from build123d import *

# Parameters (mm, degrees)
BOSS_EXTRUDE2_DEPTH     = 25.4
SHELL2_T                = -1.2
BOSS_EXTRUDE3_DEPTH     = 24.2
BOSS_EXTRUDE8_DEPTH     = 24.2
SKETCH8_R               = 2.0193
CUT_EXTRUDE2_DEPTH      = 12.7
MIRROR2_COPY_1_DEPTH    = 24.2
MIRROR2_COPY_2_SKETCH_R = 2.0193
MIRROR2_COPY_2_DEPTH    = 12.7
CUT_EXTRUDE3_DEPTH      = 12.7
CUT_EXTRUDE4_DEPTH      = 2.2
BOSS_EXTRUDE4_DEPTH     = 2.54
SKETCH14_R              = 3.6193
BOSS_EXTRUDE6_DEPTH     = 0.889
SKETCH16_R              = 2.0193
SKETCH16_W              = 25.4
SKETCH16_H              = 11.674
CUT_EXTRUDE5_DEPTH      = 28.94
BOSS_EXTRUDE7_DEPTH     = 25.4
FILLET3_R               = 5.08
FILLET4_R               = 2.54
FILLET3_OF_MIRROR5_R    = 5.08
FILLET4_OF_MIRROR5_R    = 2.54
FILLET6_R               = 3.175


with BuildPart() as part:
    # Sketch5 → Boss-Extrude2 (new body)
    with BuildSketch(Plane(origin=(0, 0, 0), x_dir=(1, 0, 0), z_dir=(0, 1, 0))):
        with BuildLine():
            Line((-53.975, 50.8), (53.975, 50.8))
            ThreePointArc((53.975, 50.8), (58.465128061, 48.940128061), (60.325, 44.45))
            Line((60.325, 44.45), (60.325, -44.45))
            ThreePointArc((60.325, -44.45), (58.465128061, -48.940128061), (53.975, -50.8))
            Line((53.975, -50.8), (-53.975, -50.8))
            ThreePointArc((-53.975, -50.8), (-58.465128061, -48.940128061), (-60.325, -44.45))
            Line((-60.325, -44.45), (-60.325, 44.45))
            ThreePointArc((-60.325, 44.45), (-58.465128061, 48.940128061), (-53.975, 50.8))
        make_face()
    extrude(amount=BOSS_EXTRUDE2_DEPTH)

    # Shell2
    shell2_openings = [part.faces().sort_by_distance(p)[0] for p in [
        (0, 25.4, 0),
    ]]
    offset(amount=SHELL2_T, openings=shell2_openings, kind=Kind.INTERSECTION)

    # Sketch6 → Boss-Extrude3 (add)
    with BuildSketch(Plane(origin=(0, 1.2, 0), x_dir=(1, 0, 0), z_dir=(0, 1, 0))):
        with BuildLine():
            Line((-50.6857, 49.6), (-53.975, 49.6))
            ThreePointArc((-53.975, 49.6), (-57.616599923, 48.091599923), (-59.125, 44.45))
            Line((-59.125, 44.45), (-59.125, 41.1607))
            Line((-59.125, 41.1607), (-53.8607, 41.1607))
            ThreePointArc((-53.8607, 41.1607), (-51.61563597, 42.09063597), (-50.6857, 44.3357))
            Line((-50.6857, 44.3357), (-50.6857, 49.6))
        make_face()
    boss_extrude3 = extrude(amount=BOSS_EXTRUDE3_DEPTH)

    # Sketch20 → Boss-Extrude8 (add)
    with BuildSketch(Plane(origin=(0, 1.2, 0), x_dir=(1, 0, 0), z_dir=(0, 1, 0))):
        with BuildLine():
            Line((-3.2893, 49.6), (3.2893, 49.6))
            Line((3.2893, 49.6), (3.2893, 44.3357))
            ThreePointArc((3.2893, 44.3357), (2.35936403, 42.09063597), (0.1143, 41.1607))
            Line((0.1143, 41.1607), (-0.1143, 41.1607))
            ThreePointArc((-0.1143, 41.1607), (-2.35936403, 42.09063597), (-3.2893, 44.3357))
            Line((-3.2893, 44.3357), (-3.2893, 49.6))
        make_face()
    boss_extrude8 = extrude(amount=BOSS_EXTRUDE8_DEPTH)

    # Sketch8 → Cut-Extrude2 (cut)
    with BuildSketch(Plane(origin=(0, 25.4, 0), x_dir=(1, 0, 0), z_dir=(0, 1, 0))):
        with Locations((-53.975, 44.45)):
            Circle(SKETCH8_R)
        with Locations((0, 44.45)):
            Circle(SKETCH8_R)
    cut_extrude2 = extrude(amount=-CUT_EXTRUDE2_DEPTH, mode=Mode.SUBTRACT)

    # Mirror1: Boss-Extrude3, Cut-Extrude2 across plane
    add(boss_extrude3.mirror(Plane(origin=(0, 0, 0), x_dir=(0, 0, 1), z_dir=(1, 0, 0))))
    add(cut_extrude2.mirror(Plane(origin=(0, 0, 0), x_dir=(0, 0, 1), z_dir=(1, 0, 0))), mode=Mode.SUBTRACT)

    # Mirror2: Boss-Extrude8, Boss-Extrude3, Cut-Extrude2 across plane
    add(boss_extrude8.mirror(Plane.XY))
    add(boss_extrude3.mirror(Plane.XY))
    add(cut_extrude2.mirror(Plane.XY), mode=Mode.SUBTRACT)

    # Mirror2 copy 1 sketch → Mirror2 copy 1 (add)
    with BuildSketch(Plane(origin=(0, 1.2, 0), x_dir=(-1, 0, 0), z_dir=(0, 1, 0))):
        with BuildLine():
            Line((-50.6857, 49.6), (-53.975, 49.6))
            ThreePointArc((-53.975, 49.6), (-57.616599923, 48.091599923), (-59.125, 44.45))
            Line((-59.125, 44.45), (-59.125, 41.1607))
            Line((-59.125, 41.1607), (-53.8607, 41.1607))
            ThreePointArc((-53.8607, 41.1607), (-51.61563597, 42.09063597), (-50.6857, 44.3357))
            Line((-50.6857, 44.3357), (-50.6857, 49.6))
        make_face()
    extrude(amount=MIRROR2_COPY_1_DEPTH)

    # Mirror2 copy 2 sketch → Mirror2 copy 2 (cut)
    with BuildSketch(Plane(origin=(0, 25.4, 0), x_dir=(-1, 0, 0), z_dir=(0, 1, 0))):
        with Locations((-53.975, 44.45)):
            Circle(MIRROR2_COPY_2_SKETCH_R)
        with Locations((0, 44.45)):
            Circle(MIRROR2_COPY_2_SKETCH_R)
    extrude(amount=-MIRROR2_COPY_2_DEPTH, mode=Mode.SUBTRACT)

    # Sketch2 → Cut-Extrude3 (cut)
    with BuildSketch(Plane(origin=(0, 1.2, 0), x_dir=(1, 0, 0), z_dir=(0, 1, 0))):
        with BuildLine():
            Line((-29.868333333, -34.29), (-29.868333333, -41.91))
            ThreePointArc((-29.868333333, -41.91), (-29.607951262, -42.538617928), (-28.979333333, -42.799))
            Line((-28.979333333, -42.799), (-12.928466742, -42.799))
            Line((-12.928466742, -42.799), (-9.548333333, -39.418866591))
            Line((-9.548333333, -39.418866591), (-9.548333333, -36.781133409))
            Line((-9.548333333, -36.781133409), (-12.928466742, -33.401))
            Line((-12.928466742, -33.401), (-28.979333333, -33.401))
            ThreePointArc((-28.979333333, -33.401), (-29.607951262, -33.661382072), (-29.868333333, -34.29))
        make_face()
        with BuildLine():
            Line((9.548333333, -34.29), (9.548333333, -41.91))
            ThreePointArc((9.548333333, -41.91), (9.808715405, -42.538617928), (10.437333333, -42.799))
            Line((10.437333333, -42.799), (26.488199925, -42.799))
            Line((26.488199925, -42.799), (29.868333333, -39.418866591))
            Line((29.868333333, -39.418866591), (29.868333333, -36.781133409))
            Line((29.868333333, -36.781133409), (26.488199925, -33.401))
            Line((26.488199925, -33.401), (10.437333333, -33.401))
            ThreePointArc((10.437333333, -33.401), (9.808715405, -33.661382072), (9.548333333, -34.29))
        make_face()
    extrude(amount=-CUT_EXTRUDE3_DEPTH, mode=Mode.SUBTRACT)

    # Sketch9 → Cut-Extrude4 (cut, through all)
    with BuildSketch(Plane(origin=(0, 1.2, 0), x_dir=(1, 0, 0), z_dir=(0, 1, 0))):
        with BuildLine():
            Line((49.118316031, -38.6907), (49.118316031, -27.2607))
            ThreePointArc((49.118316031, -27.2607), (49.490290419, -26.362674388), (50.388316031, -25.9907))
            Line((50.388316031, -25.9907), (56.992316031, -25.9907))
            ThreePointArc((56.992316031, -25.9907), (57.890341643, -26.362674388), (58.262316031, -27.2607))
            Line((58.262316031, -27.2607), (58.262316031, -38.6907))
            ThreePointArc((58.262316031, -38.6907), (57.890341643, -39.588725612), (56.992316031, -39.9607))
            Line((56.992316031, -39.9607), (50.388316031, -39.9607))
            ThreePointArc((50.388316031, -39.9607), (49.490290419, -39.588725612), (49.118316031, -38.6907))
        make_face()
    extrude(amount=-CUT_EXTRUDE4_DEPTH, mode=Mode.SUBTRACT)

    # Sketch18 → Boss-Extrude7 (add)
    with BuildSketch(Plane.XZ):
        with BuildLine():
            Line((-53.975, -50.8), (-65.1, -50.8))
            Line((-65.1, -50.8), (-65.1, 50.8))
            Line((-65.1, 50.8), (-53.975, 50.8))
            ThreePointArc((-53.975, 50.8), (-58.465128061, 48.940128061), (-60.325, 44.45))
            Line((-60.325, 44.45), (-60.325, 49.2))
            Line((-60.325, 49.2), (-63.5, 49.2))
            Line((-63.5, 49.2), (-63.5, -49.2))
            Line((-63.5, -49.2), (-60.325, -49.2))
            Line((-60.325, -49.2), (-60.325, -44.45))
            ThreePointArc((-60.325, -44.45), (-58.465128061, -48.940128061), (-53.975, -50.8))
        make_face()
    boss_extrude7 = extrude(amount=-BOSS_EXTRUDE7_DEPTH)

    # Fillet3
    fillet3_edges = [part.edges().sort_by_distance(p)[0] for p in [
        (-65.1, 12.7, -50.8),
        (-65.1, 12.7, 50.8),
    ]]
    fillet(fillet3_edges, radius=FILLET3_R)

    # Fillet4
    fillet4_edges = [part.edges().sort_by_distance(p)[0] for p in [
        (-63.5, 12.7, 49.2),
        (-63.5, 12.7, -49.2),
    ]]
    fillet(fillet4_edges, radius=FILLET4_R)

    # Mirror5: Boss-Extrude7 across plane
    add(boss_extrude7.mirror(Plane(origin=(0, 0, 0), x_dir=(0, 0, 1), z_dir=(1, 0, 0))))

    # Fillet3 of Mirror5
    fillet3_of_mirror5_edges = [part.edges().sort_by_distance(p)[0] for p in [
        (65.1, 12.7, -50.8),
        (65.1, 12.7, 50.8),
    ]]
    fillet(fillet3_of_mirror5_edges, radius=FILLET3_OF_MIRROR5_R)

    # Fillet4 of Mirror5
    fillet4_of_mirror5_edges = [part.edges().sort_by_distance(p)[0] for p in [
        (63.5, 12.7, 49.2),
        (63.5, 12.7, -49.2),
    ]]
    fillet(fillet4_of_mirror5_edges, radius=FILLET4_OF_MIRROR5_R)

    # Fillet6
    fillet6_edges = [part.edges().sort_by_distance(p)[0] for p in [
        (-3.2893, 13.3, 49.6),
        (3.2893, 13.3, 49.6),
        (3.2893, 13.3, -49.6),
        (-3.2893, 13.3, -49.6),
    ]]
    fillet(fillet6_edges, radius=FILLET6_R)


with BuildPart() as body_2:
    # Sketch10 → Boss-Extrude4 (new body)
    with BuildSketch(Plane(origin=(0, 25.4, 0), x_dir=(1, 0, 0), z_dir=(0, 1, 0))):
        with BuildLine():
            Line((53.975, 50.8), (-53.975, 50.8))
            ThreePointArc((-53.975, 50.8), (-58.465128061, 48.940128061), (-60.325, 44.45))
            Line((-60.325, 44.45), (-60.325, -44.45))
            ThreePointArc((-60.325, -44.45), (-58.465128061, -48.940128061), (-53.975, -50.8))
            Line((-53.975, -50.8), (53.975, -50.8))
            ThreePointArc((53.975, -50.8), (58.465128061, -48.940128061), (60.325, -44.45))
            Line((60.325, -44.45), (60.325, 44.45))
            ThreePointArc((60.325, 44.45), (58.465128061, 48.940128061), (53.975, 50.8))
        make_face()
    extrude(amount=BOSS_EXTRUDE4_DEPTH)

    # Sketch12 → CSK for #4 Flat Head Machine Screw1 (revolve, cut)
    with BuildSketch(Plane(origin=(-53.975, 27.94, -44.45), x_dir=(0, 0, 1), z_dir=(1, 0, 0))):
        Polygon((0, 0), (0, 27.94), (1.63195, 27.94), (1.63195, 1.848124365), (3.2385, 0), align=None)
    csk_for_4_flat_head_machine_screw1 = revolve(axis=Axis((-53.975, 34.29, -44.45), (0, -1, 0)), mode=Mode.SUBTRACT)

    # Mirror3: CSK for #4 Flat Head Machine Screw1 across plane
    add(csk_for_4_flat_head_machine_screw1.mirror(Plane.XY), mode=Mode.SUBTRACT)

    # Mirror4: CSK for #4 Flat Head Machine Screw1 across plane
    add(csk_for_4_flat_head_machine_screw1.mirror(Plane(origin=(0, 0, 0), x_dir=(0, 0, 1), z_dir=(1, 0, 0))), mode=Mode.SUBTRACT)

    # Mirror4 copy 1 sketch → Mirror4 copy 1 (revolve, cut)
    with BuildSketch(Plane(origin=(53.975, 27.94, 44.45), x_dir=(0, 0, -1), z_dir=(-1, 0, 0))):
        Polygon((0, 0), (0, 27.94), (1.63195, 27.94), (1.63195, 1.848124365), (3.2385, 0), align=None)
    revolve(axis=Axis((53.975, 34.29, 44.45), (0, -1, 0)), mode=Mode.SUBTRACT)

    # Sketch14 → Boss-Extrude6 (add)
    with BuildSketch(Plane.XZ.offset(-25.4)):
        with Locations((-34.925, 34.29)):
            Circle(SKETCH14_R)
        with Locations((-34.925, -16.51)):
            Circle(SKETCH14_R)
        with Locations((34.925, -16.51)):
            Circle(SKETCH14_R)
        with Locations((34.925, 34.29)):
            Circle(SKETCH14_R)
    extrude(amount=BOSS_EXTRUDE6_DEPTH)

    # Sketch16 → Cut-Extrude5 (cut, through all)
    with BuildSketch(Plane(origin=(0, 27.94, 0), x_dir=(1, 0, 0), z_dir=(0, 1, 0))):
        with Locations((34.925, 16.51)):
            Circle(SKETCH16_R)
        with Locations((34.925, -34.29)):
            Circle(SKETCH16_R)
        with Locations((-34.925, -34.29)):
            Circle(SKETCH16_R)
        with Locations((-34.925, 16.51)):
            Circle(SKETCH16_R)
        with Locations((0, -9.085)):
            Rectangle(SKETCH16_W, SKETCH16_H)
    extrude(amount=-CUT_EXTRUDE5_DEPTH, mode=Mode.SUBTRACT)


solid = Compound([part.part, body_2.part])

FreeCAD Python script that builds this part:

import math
import FreeCAD as App
import Part
import Sketcher
Q = App.Units.Quantity


def edges_at(feature, points):
    """Names of the edges that pass closest to the given points."""
    edges = feature.Shape.Edges
    near = lambda p: min(range(len(edges)), key=lambda i: edges[i].distToShape(Part.Vertex(*p))[0])
    return sorted({f"Edge{near(p) + 1}" for p in points})


def faces_at(feature, points):
    """Names of the faces that lie closest to the given points."""
    faces = feature.Shape.Faces
    near = lambda p: min(range(len(faces)), key=lambda i: faces[i].distToShape(Part.Vertex(*p))[0])
    return sorted({f"Face{near(p) + 1}" for p in points})


def add_polygon(sketch, points):
    """Adds a closed chain of lines whose ends are joined by coincident constraints."""
    first, n = sketch.GeometryCount, len(points)
    for a, b in zip(points, points[1:] + points[:1]):
        sketch.addGeometry(Part.LineSegment(App.Vector(*a, 0), App.Vector(*b, 0)), False)
    for i in range(n):
        sketch.addConstraint(Sketcher.Constraint("Coincident", first + i, 2, first + (i + 1) % n, 1))

doc = App.newDocument("Part")
params = doc.addObject("Spreadsheet::Sheet", "Params")
for row, (alias, value) in enumerate([
    ("sketch1_radius", "0.25 in"),
    ("sketch1_height", "3.5 in"),
    ("sketch1_width", "4.25 in"),
    ("pad1_length", "1 in"),
    ("thickness_wall", "1.2 mm"),
    ("sketch2_radius", "0.125 in"),
    ("pad2_length", "24.2 mm"),
    ("sketch3_radius", "0.125 in"),
    ("sketch3_width", "0.259 in"),
    ("pad3_length", "24.2 mm"),
    ("sketch4_diameter", "0.159 in"),
    ("pocket1_length", "0.5 in"),
    ("sketch5_radius", "0.125 in"),
    ("pad4_length", "24.2 mm"),
    ("sketch6_diameter", "0.159 in"),
    ("pocket2_length", "0.5 in"),
    ("sketch7_height", "0.3 in"),
    ("sketch7_radius", "0.035 in"),
    ("pocket3_length", "0.5 in"),
    ("sketch8_radius", "0.05 in"),
    ("sketch8_width", "0.26 in"),
    ("sketch8_height", "0.45 in"),
    ("sketch9_height", "4 in"),
    ("sketch9_radius", "0.25 in"),
    ("sketch9_width", "0.125 in"),
    ("pad5_length", "1 in"),
    ("fillet_radius", "0.2 in"),
    ("fillet2_radius", "0.1 in"),
    ("fillet3_radius", "0.2 in"),
    ("fillet4_radius", "0.1 in"),
    ("fillet5_radius", "0.125 in"),
    ("sketch10_radius", "0.25 in"),
    ("sketch10_height", "3.5 in"),
    ("sketch10_width", "4.25 in"),
    ("pad6_length", "0.1 in"),
    ("sketch11_width", "1.1 in"),
    ("groove_angle", "360 deg"),
    ("sketch12_width", "1.1 in"),
    ("groove2_angle", "360 deg"),
    ("pad7_length", "0.035 in"),
    ("sketch14_width", "1 in"),
    ("sketch14_diameter", "0.159 in"),
], start=1):
    params.set(f"A{row}", alias)
    params.set(f"B{row}", "=" + value)
    params.setAlias(f"B{row}", alias)

body = doc.addObject("PartDesign::Body", "Body")

# Sketch on XZ plane
sketch1 = body.newObject("Sketcher::SketchObject", "Sketch")
sketch1.AttachmentSupport = (doc.getObject("XZ_Plane"), [""])
sketch1.MapMode = "FlatFace"
sketch1.addGeometry(Part.LineSegment(App.Vector(54, -51, 0), App.Vector(-54, -51, 0)), False)
sketch1.addGeometry(Part.ArcOfCircle(Part.Circle(App.Vector(-54, -44, 0), App.Vector(0, 0, 1), 6), math.radians(180), math.radians(270)), False)
sketch1.addGeometry(Part.LineSegment(App.Vector(-60, -44, 0), App.Vector(-60, 44, 0)), False)
sketch1.addGeometry(Part.ArcOfCircle(Part.Circle(App.Vector(-54, 44, 0), App.Vector(0, 0, 1), 6), math.radians(90), math.radians(180)), False)
sketch1.addGeometry(Part.LineSegment(App.Vector(-54, 51, 0), App.Vector(54, 51, 0)), False)
sketch1.addGeometry(Part.ArcOfCircle(Part.Circle(App.Vector(54, 44, 0), App.Vector(0, 0, 1), 6), math.radians(0), math.radians(90)), False)
sketch1.addGeometry(Part.LineSegment(App.Vector(60, 44, 0), App.Vector(60, -44, 0)), False)
sketch1.addGeometry(Part.ArcOfCircle(Part.Circle(App.Vector(54, -44, 0), App.Vector(0, 0, 1), 6), math.radians(-90), math.radians(0)), False)
sketch1.addConstraint(Sketcher.Constraint("Tangent", 0, 2, 1, 2))
sketch1.addConstraint(Sketcher.Constraint("Tangent", 1, 1, 2, 1))
sketch1.addConstraint(Sketcher.Constraint("Tangent", 2, 2, 3, 2))
sketch1.addConstraint(Sketcher.Constraint("Tangent", 3, 1, 4, 1))
sketch1.addConstraint(Sketcher.Constraint("Tangent", 4, 2, 5, 2))
sketch1.addConstraint(Sketcher.Constraint("Tangent", 5, 1, 6, 1))
sketch1.addConstraint(Sketcher.Constraint("Tangent", 6, 2, 7, 2))
sketch1.addConstraint(Sketcher.Constraint("Tangent", 7, 1, 0, 1))
sketch1.addConstraint(Sketcher.Constraint("Horizontal", 0))
sketch1.addConstraint(Sketcher.Constraint("Vertical", 2))
sketch1.addConstraint(Sketcher.Constraint("Horizontal", 4))
sketch1.addConstraint(Sketcher.Constraint("Vertical", 6))
sketch1.addConstraint(Sketcher.Constraint("Equal", 1, 3))
sketch1.addConstraint(Sketcher.Constraint("Equal", 3, 5))
sketch1.addConstraint(Sketcher.Constraint("Equal", 5, 7))
sketch1.addConstraint(Sketcher.Constraint("Symmetric", 1, 3, 5, 3, -1, 1))
sketch1.addConstraint(Sketcher.Constraint("Radius", 1, Q("0.25 in")))
sketch1.addConstraint(Sketcher.Constraint("DistanceY", 2, 1, 2, 2, Q("3.5 in")))
sketch1.addConstraint(Sketcher.Constraint("DistanceX", 0, 2, 0, 1, Q("4.25 in")))
sketch1.setExpression("Constraints[16]", "Params.sketch1_radius")
sketch1.setExpression("Constraints[17]", "Params.sketch1_height")
sketch1.setExpression("Constraints[18]", "Params.sketch1_width")
pad1 = body.newObject("PartDesign::Pad", "Pad")
pad1.Profile = sketch1
pad1.setExpression("Length", "Params.pad1_length")
pad1.Reversed = True
doc.recompute()

thickness = body.newObject("PartDesign::Thickness", "Thickness")
thickness.Base = (pad1, faces_at(pad1, [(0, 25.4, 0)]))
thickness.setExpression("Value", "Params.thickness_wall")
thickness.Reversed = True
thickness.Join = "Intersection"

# Sketch on XZ plane
sketch2 = body.newObject("Sketcher::SketchObject", "Sketch001")
sketch2.AttachmentSupport = (doc.getObject("XZ_Plane"), [""])
sketch2.MapMode = "FlatFace"
sketch2.AttachmentOffset = App.Placement(App.Vector(0, 0, -1.2), App.Rotation())
sketch2.addGeometry(Part.LineSegment(App.Vector(-50.7, -49.6, 0), App.Vector(-54, -49.6, 0)), False)
sketch2.addGeometry(Part.ArcOfCircle(Part.Circle(App.Vector(-54, -44.5, 0), App.Vector(0, 0, 1), 5.2), math.radians(180), math.radians(270)), False)
sketch2.addGeometry(Part.LineSegment(App.Vector(-59.1, -44.5, 0), App.Vector(-59.1, -41.2, 0)), False)
sketch2.addGeometry(Part.LineSegment(App.Vector(-59.1, -41.2, 0), App.Vector(-53.9, -41.2, 0)), False)
sketch2.addGeometry(Part.ArcOfCircle(Part.Circle(App.Vector(-53.9, -44.3, 0), App.Vector(0, 0, 1), 3.2), math.radians(0), math.radians(90)), False)
sketch2.addGeometry(Part.LineSegment(App.Vector(-50.7, -44.3, 0), App.Vector(-50.7, -49.6, 0)), False)
sketch2.addConstraint(Sketcher.Constraint("Tangent", 0, 2, 1, 2))
sketch2.addConstraint(Sketcher.Constraint("Tangent", 1, 1, 2, 1))
sketch2.addConstraint(Sketcher.Constraint("Coincident", 2, 2, 3, 1))
sketch2.addConstraint(Sketcher.Constraint("Tangent", 3, 2, 4, 2))
sketch2.addConstraint(Sketcher.Constraint("Tangent", 4, 1, 5, 1))
sketch2.addConstraint(Sketcher.Constraint("Coincident", 5, 2, 0, 1))
sketch2.addConstraint(Sketcher.Constraint("Horizontal", 0))
sketch2.addConstraint(Sketcher.Constraint("Vertical", 2))
sketch2.addConstraint(Sketcher.Constraint("Horizontal", 3))
sketch2.addConstraint(Sketcher.Constraint("Vertical", 5))
sketch2.addConstraint(Sketcher.Constraint("Equal", 0, 2))
sketch2.addConstraint(Sketcher.Constraint("Radius", 4, Q("0.125 in")))
sketch2.addConstraint(Sketcher.Constraint("DistanceY", 1, 3, -1, 1, Q("1.75 in")))
sketch2.addConstraint(Sketcher.Constraint("Radius", 1, 5.15))
sketch2.addConstraint(Sketcher.Constraint("DistanceX", 0, 2, 0, 1, Q("0.1295 in")))
sketch2.addConstraint(Sketcher.Constraint("DistanceX", 1, 3, -1, 1, Q("2.125 in")))
sketch2.setExpression("Constraints[11]", "Params.sketch2_radius")
pad2 = body.newObject("PartDesign::Pad", "Pad001")
pad2.Profile = sketch2
pad2.setExpression("Length", "Params.pad2_length")
pad2.Reversed = True

# Sketch on XZ plane
sketch3 = body.newObject("Sketcher::SketchObject", "Sketch002")
sketch3.AttachmentSupport = (doc.getObject("XZ_Plane"), [""])
sketch3.MapMode = "FlatFace"
sketch3.AttachmentOffset = App.Placement(App.Vector(0, 0, -1.2), App.Rotation())
sketch3.addGeometry(Part.LineSegment(App.Vector(3.29, -49.6, 0), App.Vector(-3.29, -49.6, 0)), False)
sketch3.addGeometry(Part.LineSegment(App.Vector(-3.29, -49.6, 0), App.Vector(-3.29, -44.34, 0)), False)
sketch3.addGeometry(Part.ArcOfCircle(Part.Circle(App.Vector(-0.11, -44.34, 0), App.Vector(0, 0, 1), 3.18), math.radians(90), math.radians(180)), False)
sketch3.addGeometry(Part.LineSegment(App.Vector(-0.11, -41.16, 0), App.Vector(0.11, -41.16, 0)), False)
sketch3.addGeometry(Part.ArcOfCircle(Part.Circle(App.Vector(0.11, -44.34, 0), App.Vector(0, 0, 1), 3.18), math.radians(0), math.radians(90)), False)
sketch3.addGeometry(Part.LineSegment(App.Vector(3.29, -44.34, 0), App.Vector(3.29, -49.6, 0)), False)
sketch3.addConstraint(Sketcher.Constraint("Coincident", 0, 2, 1, 1))
sketch3.addConstraint(Sketcher.Constraint("Tangent", 1, 2, 2, 2))
sketch3.addConstraint(Sketcher.Constraint("Tangent", 2, 1, 3, 1))
sketch3.addConstraint(Sketcher.Constraint("Tangent", 3, 2, 4, 2))
sketch3.addConstraint(Sketcher.Constraint("Tangent", 4, 1, 5, 1))
sketch3.addConstraint(Sketcher.Constraint("Coincident", 5, 2, 0, 1))
sketch3.addConstraint(Sketcher.Constraint("Horizontal", 0))
sketch3.addConstraint(Sketcher.Constraint("Vertical", 1))
sketch3.addConstraint(Sketcher.Constraint("Horizontal", 3))
sketch3.addConstraint(Sketcher.Constraint("Vertical", 5))
sketch3.addConstraint(Sketcher.Constraint("Equal", 2, 4))
sketch3.addConstraint(Sketcher.Constraint("Radius", 2, Q("0.125 in")))
sketch3.addConstraint(Sketcher.Constraint("DistanceX", 0, 2, 0, 1, Q("0.259 in")))
sketch3.addConstraint(Sketcher.Constraint("DistanceY", 1, 1, 1, 2, 5.2643))
sketch3.addConstraint(Sketcher.Constraint("DistanceX", 2, 3, -1, 1, Q("0.0045 in")))
sketch3.addConstraint(Sketcher.Constraint("DistanceY", 2, 3, -1, 1, Q("1.7455 in")))
sketch3.setExpression("Constraints[11]", "Params.sketch3_radius")
sketch3.setExpression("Constraints[12]", "Params.sketch3_width")
pad3 = body.newObject("PartDesign::Pad", "Pad002")
pad3.Profile = sketch3
pad3.setExpression("Length", "Params.pad3_length")
pad3.Reversed = True

# Sketch on XZ plane
sketch4 = body.newObject("Sketcher::SketchObject", "Sketch003")
sketch4.AttachmentSupport = (doc.getObject("XZ_Plane"), [""])
sketch4.MapMode = "FlatFace"
sketch4.AttachmentOffset = App.Placement(App.Vector(0, 0, -1 * 25.4), App.Rotation())
sketch4.addGeometry(Part.Circle(App.Vector(-54, -44.5, 0), App.Vector(0, 0, 1), 2), False)
sketch4.addGeometry(Part.Circle(App.Vector(0, -44.5, 0), App.Vector(0, 0, 1), 2), False)
sketch4.addConstraint(Sketcher.Constraint("Equal", 0, 1))
sketch4.addConstraint(Sketcher.Constraint("PointOnObject", 1, 3, -2))
sketch4.addConstraint(Sketcher.Constraint("Horizontal", 0, 3, 1, 3))
sketch4.addConstraint(Sketcher.Constraint("Diameter", 0, Q("0.159 in")))
sketch4.addConstraint(Sketcher.Constraint("DistanceY", 0, 3, -1, 1, Q("1.75 in")))
sketch4.addConstraint(Sketcher.Constraint("DistanceX", 0, 3, -1, 1, Q("2.125 in")))
sketch4.setExpression("Constraints[3]", "Params.sketch4_diameter")
pocket1 = body.newObject("PartDesign::Pocket", "Pocket")
pocket1.Profile = sketch4
pocket1.setExpression("Length", "Params.pocket1_length")
pocket1.Reversed = True
doc.recompute()

mirrored = body.newObject("PartDesign::Mirrored", "Mirrored")
mirrored.Originals = [pad2, pocket1]
mirrored.MirrorPlane = (doc.getObject("YZ_Plane"), [""])
body.Tip = mirrored
doc.recompute()

mirrored2 = body.newObject("PartDesign::Mirrored", "Mirrored001")
mirrored2.Originals = [pad3, pad2, pocket1]
mirrored2.MirrorPlane = (doc.getObject("XY_Plane"), [""])
body.Tip = mirrored2

# Sketch on XZ plane
sketch5 = body.newObject("Sketcher::SketchObject", "Sketch004")
sketch5.AttachmentSupport = (doc.getObject("XZ_Plane"), [""])
sketch5.MapMode = "FlatFace"
sketch5.AttachmentOffset = App.Placement(App.Vector(0, 0, -1.2), App.Rotation())
sketch5.addGeometry(Part.LineSegment(App.Vector(50.7, 49.6, 0), App.Vector(54, 49.6, 0)), False)
sketch5.addGeometry(Part.ArcOfCircle(Part.Circle(App.Vector(54, 44.5, 0), App.Vector(0, 0, 1), 5.2), math.radians(0), math.radians(90)), False)
sketch5.addGeometry(Part.LineSegment(App.Vector(59.1, 44.5, 0), App.Vector(59.1, 41.2, 0)), False)
sketch5.addGeometry(Part.LineSegment(App.Vector(59.1, 41.2, 0), App.Vector(53.9, 41.2, 0)), False)
sketch5.addGeometry(Part.ArcOfCircle(Part.Circle(App.Vector(53.9, 44.3, 0), App.Vector(0, 0, 1), 3.2), math.radians(-180), math.radians(-90)), False)
sketch5.addGeometry(Part.LineSegment(App.Vector(50.7, 44.3, 0), App.Vector(50.7, 49.6, 0)), False)
sketch5.addConstraint(Sketcher.Constraint("Tangent", 0, 2, 1, 2))
sketch5.addConstraint(Sketcher.Constraint("Tangent", 1, 1, 2, 1))
sketch5.addConstraint(Sketcher.Constraint("Coincident", 2, 2, 3, 1))
sketch5.addConstraint(Sketcher.Constraint("Tangent", 3, 2, 4, 2))
sketch5.addConstraint(Sketcher.Constraint("Tangent", 4, 1, 5, 1))
sketch5.addConstraint(Sketcher.Constraint("Coincident", 5, 2, 0, 1))
sketch5.addConstraint(Sketcher.Constraint("Horizontal", 0))
sketch5.addConstraint(Sketcher.Constraint("Vertical", 2))
sketch5.addConstraint(Sketcher.Constraint("Horizontal", 3))
sketch5.addConstraint(Sketcher.Constraint("Vertical", 5))
sketch5.addConstraint(Sketcher.Constraint("Equal", 0, 2))
sketch5.addConstraint(Sketcher.Constraint("Radius", 4, Q("0.125 in")))
sketch5.addConstraint(Sketcher.Constraint("DistanceY", -1, 1, 1, 3, Q("1.75 in")))
sketch5.addConstraint(Sketcher.Constraint("Radius", 1, 5.15))
sketch5.addConstraint(Sketcher.Constraint("DistanceX", 0, 1, 0, 2, Q("0.1295 in")))
sketch5.addConstraint(Sketcher.Constraint("DistanceX", -1, 1, 1, 3, Q("2.125 in")))
sketch5.setExpression("Constraints[11]", "Params.sketch5_radius")
pad4 = body.newObject("PartDesign::Pad", "Pad003")
pad4.Profile = sketch5
pad4.setExpression("Length", "Params.pad4_length")
pad4.Reversed = True

# Sketch on XZ plane
sketch6 = body.newObject("Sketcher::SketchObject", "Sketch005")
sketch6.AttachmentSupport = (doc.getObject("XZ_Plane"), [""])
sketch6.MapMode = "FlatFace"
sketch6.AttachmentOffset = App.Placement(App.Vector(0, 0, -1 * 25.4), App.Rotation())
sketch6.addGeometry(Part.Circle(App.Vector(54, 44.5, 0), App.Vector(0, 0, 1), 2), False)
sketch6.addGeometry(Part.Circle(App.Vector(0, 44.5, 0), App.Vector(0, 0, 1), 2), False)
sketch6.addConstraint(Sketcher.Constraint("Equal", 0, 1))
sketch6.addConstraint(Sketcher.Constraint("PointOnObject", 1, 3, -2))
sketch6.addConstraint(Sketcher.Constraint("Horizontal", 0, 3, 1, 3))
sketch6.addConstraint(Sketcher.Constraint("Diameter", 0, Q("0.159 in")))
sketch6.addConstraint(Sketcher.Constraint("DistanceY", -1, 1, 0, 3, Q("1.75 in")))
sketch6.addConstraint(Sketcher.Constraint("DistanceX", -1, 1, 0, 3, Q("2.125 in")))
sketch6.setExpression("Constraints[3]", "Params.sketch6_diameter")
pocket2 = body.newObject("PartDesign::Pocket", "Pocket001")
pocket2.Profile = sketch6
pocket2.setExpression("Length", "Params.pocket2_length")
pocket2.Reversed = True

# Sketch on XZ plane
sketch7 = body.newObject("Sketcher::SketchObject", "Sketch006")
sketch7.AttachmentSupport = (doc.getObject("XZ_Plane"), [""])
sketch7.MapMode = "FlatFace"
sketch7.AttachmentOffset = App.Placement(App.Vector(0, 0, -1.2), App.Rotation())
sketch7.addGeometry(Part.LineSegment(App.Vector(-29.9, 34.3, 0), App.Vector(-29.9, 41.9, 0)), False)
sketch7.addGeometry(Part.ArcOfCircle(Part.Circle(App.Vector(-29, 41.9, 0), App.Vector(0, 0, 1), 0.9), math.radians(90), math.radians(180)), False)
sketch7.addGeometry(Part.LineSegment(App.Vector(-29, 42.8, 0), App.Vector(-12.9, 42.8, 0)), False)
sketch7.addGeometry(Part.LineSegment(App.Vector(-12.9, 42.8, 0), App.Vector(-9.5, 39.4, 0)), False)
sketch7.addGeometry(Part.LineSegment(App.Vector(-9.5, 39.4, 0), App.Vector(-9.5, 36.8, 0)), False)
sketch7.addGeometry(Part.LineSegment(App.Vector(-9.5, 36.8, 0), App.Vector(-12.9, 33.4, 0)), False)
sketch7.addGeometry(Part.LineSegment(App.Vector(-12.9, 33.4, 0), App.Vector(-29, 33.4, 0)), False)
sketch7.addGeometry(Part.ArcOfCircle(Part.Circle(App.Vector(-29, 34.3, 0), App.Vector(0, 0, 1), 0.9), math.radians(180), math.radians(270)), False)
sketch7.addGeometry(Part.LineSegment(App.Vector(9.5, 34.3, 0), App.Vector(9.5, 41.9, 0)), False)
sketch7.addGeometry(Part.ArcOfCircle(Part.Circle(App.Vector(10.4, 41.9, 0), App.Vector(0, 0, 1), 0.9), math.radians(90), math.radians(180)), False)
sketch7.addGeometry(Part.LineSegment(App.Vector(10.4, 42.8, 0), App.Vector(26.5, 42.8, 0)), False)
sketch7.addGeometry(Part.LineSegment(App.Vector(26.5, 42.8, 0), App.Vector(29.9, 39.4, 0)), False)
sketch7.addGeometry(Part.LineSegment(App.Vector(29.9, 39.4, 0), App.Vector(29.9, 36.8, 0)), False)
sketch7.addGeometry(Part.LineSegment(App.Vector(29.9, 36.8, 0), App.Vector(26.5, 33.4, 0)), False)
sketch7.addGeometry(Part.LineSegment(App.Vector(26.5, 33.4, 0), App.Vector(10.4, 33.4, 0)), False)
sketch7.addGeometry(Part.ArcOfCircle(Part.Circle(App.Vector(10.4, 34.3, 0), App.Vector(0, 0, 1), 0.9), math.radians(-180), math.radians(-90)), False)
sketch7.addConstraint(Sketcher.Constraint("Tangent", 0, 2, 1, 2))
sketch7.addConstraint(Sketcher.Constraint("Tangent", 1, 1, 2, 1))
sketch7.addConstraint(Sketcher.Constraint("Coincident", 2, 2, 3, 1))
sketch7.addConstraint(Sketcher.Constraint("Coincident", 3, 2, 4, 1))
sketch7.addConstraint(Sketcher.Constraint("Coincident", 4, 2, 5, 1))
sketch7.addConstraint(Sketcher.Constraint("Coincident", 5, 2, 6, 1))
sketch7.addConstraint(Sketcher.Constraint("Tangent", 6, 2, 7, 2))
sketch7.addConstraint(Sketcher.Constraint("Tangent", 7, 1, 0, 1))
sketch7.addConstraint(Sketcher.Constraint("Tangent", 8, 2, 9, 2))
sketch7.addConstraint(Sketcher.Constraint("Tangent", 9, 1, 10, 1))
sketch7.addConstraint(Sketcher.Constraint("Coincident", 10, 2, 11, 1))
sketch7.addConstraint(Sketcher.Constraint("Coincident", 11, 2, 12, 1))
sketch7.addConstraint(Sketcher.Constraint("Coincident", 12, 2, 13, 1))
sketch7.addConstraint(Sketcher.Constraint("Coincident", 13, 2, 14, 1))
sketch7.addConstraint(Sketcher.Constraint("Tangent", 14, 2, 15, 2))
sketch7.addConstraint(Sketcher.Constraint("Tangent", 15, 1, 8, 1))
sketch7.addConstraint(Sketcher.Constraint("Vertical", 0))
sketch7.addConstraint(Sketcher.Constraint("Horizontal", 2))
sketch7.addConstraint(Sketcher.Constraint("Vertical", 4))
sketch7.addConstraint(Sketcher.Constraint("Horizontal", 6))
sketch7.addConstraint(Sketcher.Constraint("Vertical", 8))
sketch7.addConstraint(Sketcher.Constraint("Horizontal", 10))
sketch7.addConstraint(Sketcher.Constraint("Vertical", 12))
sketch7.addConstraint(Sketcher.Constraint("Horizontal", 14))
sketch7.addConstraint(Sketcher.Constraint("Equal", 1, 7))
sketch7.addConstraint(Sketcher.Constraint("Equal", 7, 9))
sketch7.addConstraint(Sketcher.Constraint("Equal", 9, 15))
sketch7.addConstraint(Sketcher.Constraint("Perpendicular", 3, 5))
sketch7.addConstraint(Sketcher.Constraint("Perpendicular", 5, 11))
sketch7.addConstraint(Sketcher.Constraint("Perpendicular", 11, 13))
sketch7.addConstraint(Sketcher.Constraint("Horizontal", 1, 3, 9, 3))
sketch7.addConstraint(Sketcher.Constraint("Horizontal", 7, 3, 15, 3))
sketch7.addConstraint(Sketcher.Constraint("Horizontal", 3, 2, 11, 2))
sketch7.addConstraint(Sketcher.Constraint("Horizontal", 4, 2, 12, 2))
sketch7.addConstraint(Sketcher.Constraint("Vertical", 2, 2, 5, 2))
sketch7.addConstraint(Sketcher.Constraint("Equal", 6, 10))
sketch7.addConstraint(Sketcher.Constraint("Equal", 3, 5))
sketch7.addConstraint(Sketcher.Constraint("DistanceY", 0, 1, 0, 2, Q("0.3 in")))
sketch7.addConstraint(Sketcher.Constraint("Radius", 1, Q("0.035 in")))
sketch7.addConstraint(Sketcher.Constraint("DistanceX", 8, 2, 11, 2, Q("0.8 in")))
sketch7.addConstraint(Sketcher.Constraint("DistanceY", -1, 1, 1, 3, Q("1.65 in")))
sketch7.addConstraint(Sketcher.Constraint("DistanceX", -1, 1, 10, 2, 26.4882))
sketch7.addConstraint(Sketcher.Constraint("DistanceX", 2, 2, 9, 3, 23.3658))
sketch7.addConstraint(Sketcher.Constraint("Distance", 3, 4.780231))
sketch7.setExpression("Constraints[37]", "Params.sketch7_height")
sketch7.setExpression("Constraints[38]", "Params.sketch7_radius")
pocket3 = body.newObject("PartDesign::Pocket", "Pocket002")
pocket3.Profile = sketch7
pocket3.setExpression("Length", "Params.pocket3_length")
pocket3.Reversed = True

# Sketch on XZ plane
sketch8 = body.newObject("Sketcher::SketchObject", "Sketch007")
sketch8.AttachmentSupport = (doc.getObject("XZ_Plane"), [""])
sketch8.MapMode = "FlatFace"
sketch8.AttachmentOffset = App.Placement(App.Vector(0, 0, -1.2), App.Rotation())
sketch8.addGeometry(Part.LineSegment(App.Vector(49.1, 27.3, 0), App.Vector(49.1, 38.7, 0)), False)
sketch8.addGeometry(Part.ArcOfCircle(Part.Circle(App.Vector(50.4, 38.7, 0), App.Vector(0, 0, 1), 1.3), math.radians(90), math.radians(180)), False)
sketch8.addGeometry(Part.LineSegment(App.Vector(50.4, 40, 0), App.Vector(57, 40, 0)), False)
sketch8.addGeometry(Part.ArcOfCircle(Part.Circle(App.Vector(57, 38.7, 0), App.Vector(0, 0, 1), 1.3), math.radians(0), math.radians(90)), False)
sketch8.addGeometry(Part.LineSegment(App.Vector(58.3, 38.7, 0), App.Vector(58.3, 27.3, 0)), False)
sketch8.addGeometry(Part.ArcOfCircle(Part.Circle(App.Vector(57, 27.3, 0), App.Vector(0, 0, 1), 1.3), math.radians(-90), math.radians(0)), False)
sketch8.addGeometry(Part.LineSegment(App.Vector(57, 26, 0), App.Vector(50.4, 26, 0)), False)
sketch8.addGeometry(Part.ArcOfCircle(Part.Circle(App.Vector(50.4, 27.3, 0), App.Vector(0, 0, 1), 1.3), math.radians(180), math.radians(270)), False)
sketch8.addConstraint(Sketcher.Constraint("Tangent", 0, 2, 1, 2))
sketch8.addConstraint(Sketcher.Constraint("Tangent", 1, 1, 2, 1))
sketch8.addConstraint(Sketcher.Constraint("Tangent", 2, 2, 3, 2))
sketch8.addConstraint(Sketcher.Constraint("Tangent", 3, 1, 4, 1))
sketch8.addConstraint(Sketcher.Constraint("Tangent", 4, 2, 5, 2))
sketch8.addConstraint(Sketcher.Constraint("Tangent", 5, 1, 6, 1))
sketch8.addConstraint(Sketcher.Constraint("Tangent", 6, 2, 7, 2))
sketch8.addConstraint(Sketcher.Constraint("Tangent", 7, 1, 0, 1))
sketch8.addConstraint(Sketcher.Constraint("Vertical", 0))
sketch8.addConstraint(Sketcher.Constraint("Horizontal", 2))
sketch8.addConstraint(Sketcher.Constraint("Vertical", 4))
sketch8.addConstraint(Sketcher.Constraint("Horizontal", 6))
sketch8.addConstraint(Sketcher.Constraint("Equal", 1, 3))
sketch8.addConstraint(Sketcher.Constraint("Equal", 3, 5))
sketch8.addConstraint(Sketcher.Constraint("Equal", 5, 7))
sketch8.addConstraint(Sketcher.Constraint("Radius", 1, Q("0.05 in")))
sketch8.addConstraint(Sketcher.Constraint("DistanceX", 2, 1, 2, 2, Q("0.26 in")))
sketch8.addConstraint(Sketcher.Constraint("DistanceY", 0, 1, 0, 2, Q("0.45 in")))
sketch8.addConstraint(Sketcher.Constraint("DistanceY", -1, 1, 1, 3, 38.6907))
sketch8.addConstraint(Sketcher.Constraint("DistanceX", -1, 1, 1, 3, 50.388316))
sketch8.setExpression("Constraints[15]", "Params.sketch8_radius")
sketch8.setExpression("Constraints[16]", "Params.sketch8_width")
sketch8.setExpression("Constraints[17]", "Params.sketch8_height")
pocket4 = body.newObject("PartDesign::Pocket", "Pocket003")
pocket4.Profile = sketch8
pocket4.Type = "ThroughAll"
pocket4.Reversed = True

# Sketch on XZ plane
sketch9 = body.newObject("Sketcher::SketchObject", "Sketch008")
sketch9.AttachmentSupport = (doc.getObject("XZ_Plane"), [""])
sketch9.MapMode = "FlatFace"
sketch9.addGeometry(Part.LineSegment(App.Vector(-65.1, -50.8, 0), App.Vector(-54, -50.8, 0)), False)
sketch9.addGeometry(Part.ArcOfCircle(Part.Circle(App.Vector(-54, -44.5, 0), App.Vector(0, 0, 1), 6.3), math.radians(180), math.radians(270)), False)
sketch9.addGeometry(Part.LineSegment(App.Vector(-60.3, -44.5, 0), App.Vector(-60.3, -49.2, 0)), False)
sketch9.addGeometry(Part.LineSegment(App.Vector(-60.3, -49.2, 0), App.Vector(-63.5, -49.2, 0)), False)
sketch9.addGeometry(Part.LineSegment(App.Vector(-63.5, -49.2, 0), App.Vector(-63.5, 49.2, 0)), False)
sketch9.addGeometry(Part.LineSegment(App.Vector(-63.5, 49.2, 0), App.Vector(-60.3, 49.2, 0)), False)
sketch9.addGeometry(Part.LineSegment(App.Vector(-60.3, 49.2, 0), App.Vector(-60.3, 44.5, 0)), False)
sketch9.addGeometry(Part.ArcOfCircle(Part.Circle(App.Vector(-54, 44.5, 0), App.Vector(0, 0, 1), 6.3), math.radians(90), math.radians(180)), False)
sketch9.addGeometry(Part.LineSegment(App.Vector(-54, 50.8, 0), App.Vector(-65.1, 50.8, 0)), False)
sketch9.addGeometry(Part.LineSegment(App.Vector(-65.1, 50.8, 0), App.Vector(-65.1, -50.8, 0)), False)
sketch9.addConstraint(Sketcher.Constraint("Tangent", 0, 2, 1, 2))
sketch9.addConstraint(Sketcher.Constraint("Tangent", 1, 1, 2, 1))
sketch9.addConstraint(Sketcher.Constraint("Coincident", 2, 2, 3, 1))
sketch9.addConstraint(Sketcher.Constraint("Coincident", 3, 2, 4, 1))
sketch9.addConstraint(Sketcher.Constraint("Coincident", 4, 2, 5, 1))
sketch9.addConstraint(Sketcher.Constraint("Coincident", 5, 2, 6, 1))
sketch9.addConstraint(Sketcher.Constraint("Tangent", 6, 2, 7, 2))
sketch9.addConstraint(Sketcher.Constraint("Tangent", 7, 1, 8, 1))
sketch9.addConstraint(Sketcher.Constraint("Coincident", 8, 2, 9, 1))
sketch9.addConstraint(Sketcher.Constraint("Coincident", 9, 2, 0, 1))
sketch9.addConstraint(Sketcher.Constraint("Horizontal", 0))
sketch9.addConstraint(Sketcher.Constraint("Vertical", 2))
sketch9.addConstraint(Sketcher.Constraint("Horizontal", 3))
sketch9.addConstraint(Sketcher.Constraint("Vertical", 4))
sketch9.addConstraint(Sketcher.Constraint("Horizontal", 5))
sketch9.addConstraint(Sketcher.Constraint("Vertical", 6))
sketch9.addConstraint(Sketcher.Constraint("Horizontal", 8))
sketch9.addConstraint(Sketcher.Constraint("Vertical", 9))
sketch9.addConstraint(Sketcher.Constraint("Equal", 1, 7))
sketch9.addConstraint(Sketcher.Constraint("Symmetric", 1, 3, 7, 3, -1))
sketch9.addConstraint(Sketcher.Constraint("Equal", 2, 6))
sketch9.addConstraint(Sketcher.Constraint("DistanceY", 9, 2, 9, 1, Q("4 in")))
sketch9.addConstraint(Sketcher.Constraint("Radius", 1, Q("0.25 in")))
sketch9.addConstraint(Sketcher.Constraint("DistanceX", 3, 2, -1, 1, Q("2.5 in")))
sketch9.addConstraint(Sketcher.Constraint("DistanceX", 3, 2, 3, 1, Q("0.125 in")))
sketch9.addConstraint(Sketcher.Constraint("DistanceX", 0, 1, 0, 2, 11.125))
sketch9.addConstraint(Sketcher.Constraint("DistanceY", 2, 2, 2, 1, 4.75))
sketch9.setExpression("Constraints[21]", "Params.sketch9_height")
sketch9.setExpression("Constraints[22]", "Params.sketch9_radius")
sketch9.setExpression("Constraints[24]", "Params.sketch9_width")
pad5 = body.newObject("PartDesign::Pad", "Pad004")
pad5.Profile = sketch9
pad5.setExpression("Length", "Params.pad5_length")
pad5.Reversed = True
doc.recompute()

fillet = body.newObject("PartDesign::Fillet", "Fillet")
fillet.Base = (pad5, edges_at(pad5, [(-65.1, 12.7, -50.8), (-65.1, 12.7, 50.8)]))
fillet.setExpression("Radius", "Params.fillet_radius")
doc.recompute()

fillet2 = body.newObject("PartDesign::Fillet", "Fillet001")
fillet2.Base = (fillet, edges_at(fillet, [(-63.5, 12.7, 49.2), (-63.5, 12.7, -49.2)]))
fillet2.setExpression("Radius", "Params.fillet2_radius")
doc.recompute()

mirrored3 = body.newObject("PartDesign::Mirrored", "Mirrored002")
mirrored3.Originals = [pad5]
mirrored3.MirrorPlane = (doc.getObject("YZ_Plane"), [""])
body.Tip = mirrored3
doc.recompute()

fillet3 = body.newObject("PartDesign::Fillet", "Fillet002")
fillet3.Base = (mirrored3, edges_at(mirrored3, [(65.1, 12.7, -50.8), (65.1, 12.7, 50.8)]))
fillet3.setExpression("Radius", "Params.fillet3_radius")
doc.recompute()

fillet4 = body.newObject("PartDesign::Fillet", "Fillet003")
fillet4.Base = (fillet3, edges_at(fillet3, [(63.5, 12.7, 49.2), (63.5, 12.7, -49.2)]))
fillet4.setExpression("Radius", "Params.fillet4_radius")
doc.recompute()

fillet5 = body.newObject("PartDesign::Fillet", "Fillet004")
fillet5.Base = (fillet4, edges_at(fillet4, [
    (-3.289, 13.3, 49.6),
    (3.289, 13.3, 49.6),
    (3.289, 13.3, -49.6),
    (-3.289, 13.3, -49.6),
]))
fillet5.setExpression("Radius", "Params.fillet5_radius")
body2 = doc.addObject("PartDesign::Body", "Body001")

# Sketch on XZ plane
sketch10 = body2.newObject("Sketcher::SketchObject", "Sketch009")
sketch10.AttachmentSupport = (doc.getObject("XZ_Plane001"), [""])
sketch10.MapMode = "FlatFace"
sketch10.AttachmentOffset = App.Placement(App.Vector(0, 0, -1 * 25.4), App.Rotation())
sketch10.addGeometry(Part.LineSegment(App.Vector(54, -51, 0), App.Vector(-54, -51, 0)), False)
sketch10.addGeometry(Part.ArcOfCircle(Part.Circle(App.Vector(-54, -44, 0), App.Vector(0, 0, 1), 6), math.radians(180), math.radians(270)), False)
sketch10.addGeometry(Part.LineSegment(App.Vector(-60, -44, 0), App.Vector(-60, 44, 0)), False)
sketch10.addGeometry(Part.ArcOfCircle(Part.Circle(App.Vector(-54, 44, 0), App.Vector(0, 0, 1), 6), math.radians(90), math.radians(180)), False)
sketch10.addGeometry(Part.LineSegment(App.Vector(-54, 51, 0), App.Vector(54, 51, 0)), False)
sketch10.addGeometry(Part.ArcOfCircle(Part.Circle(App.Vector(54, 44, 0), App.Vector(0, 0, 1), 6), math.radians(0), math.radians(90)), False)
sketch10.addGeometry(Part.LineSegment(App.Vector(60, 44, 0), App.Vector(60, -44, 0)), False)
sketch10.addGeometry(Part.ArcOfCircle(Part.Circle(App.Vector(54, -44, 0), App.Vector(0, 0, 1), 6), math.radians(-90), math.radians(0)), False)
sketch10.addConstraint(Sketcher.Constraint("Tangent", 0, 2, 1, 2))
sketch10.addConstraint(Sketcher.Constraint("Tangent", 1, 1, 2, 1))
sketch10.addConstraint(Sketcher.Constraint("Tangent", 2, 2, 3, 2))
sketch10.addConstraint(Sketcher.Constraint("Tangent", 3, 1, 4, 1))
sketch10.addConstraint(Sketcher.Constraint("Tangent", 4, 2, 5, 2))
sketch10.addConstraint(Sketcher.Constraint("Tangent", 5, 1, 6, 1))
sketch10.addConstraint(Sketcher.Constraint("Tangent", 6, 2, 7, 2))
sketch10.addConstraint(Sketcher.Constraint("Tangent", 7, 1, 0, 1))
sketch10.addConstraint(Sketcher.Constraint("Horizontal", 0))
sketch10.addConstraint(Sketcher.Constraint("Vertical", 2))
sketch10.addConstraint(Sketcher.Constraint("Horizontal", 4))
sketch10.addConstraint(Sketcher.Constraint("Vertical", 6))
sketch10.addConstraint(Sketcher.Constraint("Equal", 1, 3))
sketch10.addConstraint(Sketcher.Constraint("Equal", 3, 5))
sketch10.addConstraint(Sketcher.Constraint("Equal", 5, 7))
sketch10.addConstraint(Sketcher.Constraint("Symmetric", 1, 3, 5, 3, -1, 1))
sketch10.addConstraint(Sketcher.Constraint("Radius", 1, Q("0.25 in")))
sketch10.addConstraint(Sketcher.Constraint("DistanceY", 2, 1, 2, 2, Q("3.5 in")))
sketch10.addConstraint(Sketcher.Constraint("DistanceX", 0, 2, 0, 1, Q("4.25 in")))
sketch10.setExpression("Constraints[16]", "Params.sketch10_radius")
sketch10.setExpression("Constraints[17]", "Params.sketch10_height")
sketch10.setExpression("Constraints[18]", "Params.sketch10_width")
pad6 = body2.newObject("PartDesign::Pad", "Pad005")
pad6.Profile = sketch10
pad6.setExpression("Length", "Params.pad6_length")
pad6.Reversed = True

# Sketch on YZ plane
sketch11 = body2.newObject("Sketcher::SketchObject", "Sketch010")
sketch11.AttachmentSupport = (doc.getObject("YZ_Plane001"), [""])
sketch11.MapMode = "FlatFace"
sketch11.AttachmentOffset = App.Placement(App.Vector(0, 0, -2.125 * 25.4), App.Rotation())
add_polygon(sketch11, [(0, -44.5), (27.9, -44.5), (27.9, -41.2), (26.1, -42.8), (0, -42.8)])  # lines 0-4
sketch11.addGeometry(Part.LineSegment(App.Vector(27.9, -44.5, 0), App.Vector(0, -44.5, 0)), True)  # axis
sketch11.addConstraint(Sketcher.Constraint("Horizontal", 0))
sketch11.addConstraint(Sketcher.Constraint("Vertical", 1))
sketch11.addConstraint(Sketcher.Constraint("Horizontal", 3))
sketch11.addConstraint(Sketcher.Constraint("Vertical", 4))
sketch11.addConstraint(Sketcher.Constraint("Horizontal", 5))
sketch11.addConstraint(Sketcher.Constraint("Coincident", 5, 1, 0, 2))
sketch11.addConstraint(Sketcher.Constraint("PointOnObject", 3, 2, -2))
sketch11.addConstraint(Sketcher.Constraint("PointOnObject", 5, 2, -2))
sketch11.addConstraint(Sketcher.Constraint("DistanceX", 0, 1, 0, 2, Q("1.1 in")))
sketch11.addConstraint(Sketcher.Constraint("Angle", 2, Q("-139 deg")))
sketch11.addConstraint(Sketcher.Constraint("DistanceY", 0, 2, -1, 1, Q("1.75 in")))
sketch11.addConstraint(Sketcher.Constraint("DistanceY", 1, 1, 1, 2, Q("0.1275 in")))
sketch11.addConstraint(Sketcher.Constraint("DistanceY", 4, 2, 4, 1, 1.63195))
sketch11.setExpression("Constraints[13]", "Params.sketch11_width")
groove = body2.newObject("PartDesign::Groove", "Groove")
groove.Profile = sketch11
groove.ReferenceAxis = (sketch11, ["Axis0"])
groove.setExpression("Angle", "Params.groove_angle")
doc.recompute()

mirrored4 = body2.newObject("PartDesign::Mirrored", "Mirrored003")
mirrored4.Originals = [groove]
mirrored4.MirrorPlane = (doc.getObject("XY_Plane001"), [""])
body2.Tip = mirrored4
doc.recompute()

mirrored5 = body2.newObject("PartDesign::Mirrored", "Mirrored004")
mirrored5.Originals = [groove]
mirrored5.MirrorPlane = (doc.getObject("YZ_Plane001"), [""])
body2.Tip = mirrored5

# Sketch on YZ plane
sketch12 = body2.newObject("Sketcher::SketchObject", "Sketch011")
sketch12.AttachmentSupport = (doc.getObject("YZ_Plane001"), [""])
sketch12.MapMode = "FlatFace"
sketch12.AttachmentOffset = App.Placement(App.Vector(0, 0, 2.125 * 25.4), App.Rotation())
add_polygon(sketch12, [(0, 44.5), (27.9, 44.5), (27.9, 41.2), (26.1, 42.8), (0, 42.8)])  # lines 0-4
sketch12.addGeometry(Part.LineSegment(App.Vector(27.9, 44.5, 0), App.Vector(0, 44.5, 0)), True)  # axis
sketch12.addConstraint(Sketcher.Constraint("Horizontal", 0))
sketch12.addConstraint(Sketcher.Constraint("Vertical", 1))
sketch12.addConstraint(Sketcher.Constraint("Horizontal", 3))
sketch12.addConstraint(Sketcher.Constraint("Vertical", 4))
sketch12.addConstraint(Sketcher.Constraint("Horizontal", 5))
sketch12.addConstraint(Sketcher.Constraint("Coincident", 5, 1, 0, 2))
sketch12.addConstraint(Sketcher.Constraint("PointOnObject", 3, 2, -2))
sketch12.addConstraint(Sketcher.Constraint("PointOnObject", 5, 2, -2))
sketch12.addConstraint(Sketcher.Constraint("DistanceX", 0, 1, 0, 2, Q("1.1 in")))
sketch12.addConstraint(Sketcher.Constraint("Angle", 2, Q("139 deg")))
sketch12.addConstraint(Sketcher.Constraint("DistanceY", -1, 1, 0, 2, Q("1.75 in")))
sketch12.addConstraint(Sketcher.Constraint("DistanceY", 1, 2, 1, 1, Q("0.1275 in")))
sketch12.addConstraint(Sketcher.Constraint("DistanceY", 4, 1, 4, 2, 1.63195))
sketch12.setExpression("Constraints[13]", "Params.sketch12_width")
groove2 = body2.newObject("PartDesign::Groove", "Groove001")
groove2.Profile = sketch12
groove2.ReferenceAxis = (sketch12, ["Axis0"])
groove2.setExpression("Angle", "Params.groove2_angle")

# Sketch on XZ plane
sketch13 = body2.newObject("Sketcher::SketchObject", "Sketch012")
sketch13.AttachmentSupport = (doc.getObject("XZ_Plane001"), [""])
sketch13.MapMode = "FlatFace"
sketch13.AttachmentOffset = App.Placement(App.Vector(0, 0, -1 * 25.4), App.Rotation())
sketch13.addGeometry(Part.Circle(App.Vector(-34.9, 34.3, 0), App.Vector(0, 0, 1), 3.6), False)
sketch13.addGeometry(Part.Circle(App.Vector(-34.9, -16.5, 0), App.Vector(0, 0, 1), 3.6), False)
sketch13.addGeometry(Part.Circle(App.Vector(34.9, -16.5, 0), App.Vector(0, 0, 1), 3.6), False)
sketch13.addGeometry(Part.Circle(App.Vector(34.9, 34.3, 0), App.Vector(0, 0, 1), 3.6), False)
sketch13.addConstraint(Sketcher.Constraint("Equal", 0, 1))
sketch13.addConstraint(Sketcher.Constraint("Equal", 1, 2))
sketch13.addConstraint(Sketcher.Constraint("Equal", 2, 3))
sketch13.addConstraint(Sketcher.Constraint("Symmetric", 1, 3, 2, 3, -2))
sketch13.addConstraint(Sketcher.Constraint("Symmetric", 0, 3, 3, 3, -2))
sketch13.addConstraint(Sketcher.Constraint("Vertical", 0, 3, 1, 3))
sketch13.addConstraint(Sketcher.Constraint("DistanceY", 1, 3, 0, 3, Q("2 in")))
sketch13.addConstraint(Sketcher.Constraint("Diameter", 0, 7.2386))
sketch13.addConstraint(Sketcher.Constraint("DistanceY", -1, 1, 0, 3, Q("1.35 in")))
sketch13.addConstraint(Sketcher.Constraint("DistanceX", 1, 3, 2, 3, Q("2.75 in")))
pad7 = body2.newObject("PartDesign::Pad", "Pad006")
pad7.Profile = sketch13
pad7.setExpression("Length", "Params.pad7_length")

# Sketch on XZ plane
sketch14 = body2.newObject("Sketcher::SketchObject", "Sketch013")
sketch14.AttachmentSupport = (doc.getObject("XZ_Plane001"), [""])
sketch14.MapMode = "FlatFace"
sketch14.AttachmentOffset = App.Placement(App.Vector(0, 0, -1.1 * 25.4), App.Rotation())
sketch14.addGeometry(Part.Circle(App.Vector(34.9, -16.5, 0), App.Vector(0, 0, 1), 2), False)  # 0
sketch14.addGeometry(Part.Circle(App.Vector(34.9, 34.3, 0), App.Vector(0, 0, 1), 2), False)  # 1
sketch14.addGeometry(Part.Circle(App.Vector(-34.9, 34.3, 0), App.Vector(0, 0, 1), 2), False)  # 2
sketch14.addGeometry(Part.Circle(App.Vector(-34.9, -16.5, 0), App.Vector(0, 0, 1), 2), False)  # 3
add_polygon(sketch14, [(-12.7, 3.2), (-12.7, 14.9), (12.7, 14.9), (12.7, 3.2)])  # lines 4-7
sketch14.addConstraint(Sketcher.Constraint("Vertical", 4))
sketch14.addConstraint(Sketcher.Constraint("Horizontal", 5))
sketch14.addConstraint(Sketcher.Constraint("Vertical", 6))
sketch14.addConstraint(Sketcher.Constraint("Horizontal", 7))
sketch14.addConstraint(Sketcher.Constraint("Equal", 0, 1))
sketch14.addConstraint(Sketcher.Constraint("Equal", 1, 2))
sketch14.addConstraint(Sketcher.Constraint("Equal", 2, 3))
sketch14.addConstraint(Sketcher.Constraint("Symmetric", 1, 3, 2, 3, -2))
sketch14.addConstraint(Sketcher.Constraint("Symmetric", 0, 3, 3, 3, -2))
sketch14.addConstraint(Sketcher.Constraint("Vertical", 0, 3, 1, 3))
sketch14.addConstraint(Sketcher.Constraint("DistanceX", 5, 1, 5, 2, Q("1 in")))
sketch14.addConstraint(Sketcher.Constraint("Diameter", 0, Q("0.159 in")))
sketch14.addConstraint(Sketcher.Constraint("DistanceY", 0, 3, 1, 3, Q("2 in")))
sketch14.addConstraint(Sketcher.Constraint("DistanceX", 4, 2, -1, 1, Q("0.5 in")))
sketch14.addConstraint(Sketcher.Constraint("DistanceY", 0, 3, -1, 1, Q("0.65 in")))
sketch14.addConstraint(Sketcher.Constraint("DistanceX", 2, 3, 1, 3, Q("2.75 in")))
sketch14.addConstraint(Sketcher.Constraint("DistanceY", 4, 1, 4, 2, 11.674))
sketch14.addConstraint(Sketcher.Constraint("DistanceY", -1, 1, 4, 2, 14.922))
sketch14.setExpression("Constraints[14]", "Params.sketch14_width")
sketch14.setExpression("Constraints[15]", "Params.sketch14_diameter")
pocket5 = body2.newObject("PartDesign::Pocket", "Pocket004")
pocket5.Profile = sketch14
pocket5.Type = "ThroughAll"
pocket5.Reversed = True

doc.recompute()
